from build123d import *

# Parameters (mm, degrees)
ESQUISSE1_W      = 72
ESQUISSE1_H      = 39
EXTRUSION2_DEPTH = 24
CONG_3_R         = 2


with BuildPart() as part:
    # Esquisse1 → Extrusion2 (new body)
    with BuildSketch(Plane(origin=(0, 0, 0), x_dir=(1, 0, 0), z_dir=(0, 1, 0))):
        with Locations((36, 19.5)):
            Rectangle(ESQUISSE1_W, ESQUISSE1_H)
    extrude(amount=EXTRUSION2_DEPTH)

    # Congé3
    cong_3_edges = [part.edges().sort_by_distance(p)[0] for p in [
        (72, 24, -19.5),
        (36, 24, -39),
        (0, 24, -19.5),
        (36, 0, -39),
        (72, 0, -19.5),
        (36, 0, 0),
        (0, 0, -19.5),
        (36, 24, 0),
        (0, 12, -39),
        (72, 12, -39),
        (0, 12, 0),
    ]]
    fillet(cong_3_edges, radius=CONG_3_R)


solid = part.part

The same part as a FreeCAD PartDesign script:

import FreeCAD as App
import Part
import Sketcher

V = App.Vector


def edges_at(feature, points):
    """Names of the edges that pass closest to the given points."""
    edges = feature.Shape.Edges
    near = lambda p: min(range(len(edges)), key=lambda i: edges[i].distToShape(Part.Vertex(*p))[0])
    return sorted({f"Edge{near(p) + 1}" for p in points})

doc = App.newDocument("Part")
body = doc.addObject("PartDesign::Body", "Body")

sketch1 = body.newObject("Sketcher::SketchObject", "Sketch")
sketch1.AttachmentSupport = (doc.getObject("XZ_Plane"), [""])
sketch1.MapMode = "FlatFace"
sketch1.addGeometry([
    Part.LineSegment(V(0, -39, 0), V(0, 0, 0)),
    Part.LineSegment(V(0, 0, 0), V(72, 0, 0)),
    Part.LineSegment(V(72, 0, 0), V(72, -39, 0)),
    Part.LineSegment(V(72, -39, 0), V(0, -39, 0)),
], False)
sketch1.addConstraint([
    Sketcher.Constraint("Coincident", 0, 2, 1, 1),
    Sketcher.Constraint("Coincident", 1, 2, 2, 1),
    Sketcher.Constraint("Coincident", 2, 2, 3, 1),
    Sketcher.Constraint("Coincident", 3, 2, 0, 1),
    Sketcher.Constraint("Vertical", 0),
    Sketcher.Constraint("Horizontal", 1),
    Sketcher.Constraint("Vertical", 2),
    Sketcher.Constraint("Horizontal", 3),
    Sketcher.Constraint("Coincident", 0, 2, -1, 1),
    Sketcher.Constraint("DistanceX", 1, 1, 1, 2, 72.0),
    Sketcher.Constraint("DistanceY", 0, 1, 0, 2, 39.0),
])
pad1 = body.newObject("PartDesign::Pad", "Pad")
pad1.Profile = sketch1
pad1.Length = 24
pad1.Reversed = True
doc.recompute()

fillet = body.newObject("PartDesign::Fillet", "Fillet")
fillet.Base = (pad1, edges_at(pad1, [
    (72, 24, -19.5),
    (36, 24, -39),
    (0, 24, -19.5),
    (36, 0, -39),
    (72, 0, -19.5),
    (36, 0, 0),
    (0, 0, -19.5),
    (36, 24, 0),
    (0, 12, -39),
    (72, 12, -39),
    (0, 12, 0),
]))
fillet.Radius = 2

doc.recompute()
